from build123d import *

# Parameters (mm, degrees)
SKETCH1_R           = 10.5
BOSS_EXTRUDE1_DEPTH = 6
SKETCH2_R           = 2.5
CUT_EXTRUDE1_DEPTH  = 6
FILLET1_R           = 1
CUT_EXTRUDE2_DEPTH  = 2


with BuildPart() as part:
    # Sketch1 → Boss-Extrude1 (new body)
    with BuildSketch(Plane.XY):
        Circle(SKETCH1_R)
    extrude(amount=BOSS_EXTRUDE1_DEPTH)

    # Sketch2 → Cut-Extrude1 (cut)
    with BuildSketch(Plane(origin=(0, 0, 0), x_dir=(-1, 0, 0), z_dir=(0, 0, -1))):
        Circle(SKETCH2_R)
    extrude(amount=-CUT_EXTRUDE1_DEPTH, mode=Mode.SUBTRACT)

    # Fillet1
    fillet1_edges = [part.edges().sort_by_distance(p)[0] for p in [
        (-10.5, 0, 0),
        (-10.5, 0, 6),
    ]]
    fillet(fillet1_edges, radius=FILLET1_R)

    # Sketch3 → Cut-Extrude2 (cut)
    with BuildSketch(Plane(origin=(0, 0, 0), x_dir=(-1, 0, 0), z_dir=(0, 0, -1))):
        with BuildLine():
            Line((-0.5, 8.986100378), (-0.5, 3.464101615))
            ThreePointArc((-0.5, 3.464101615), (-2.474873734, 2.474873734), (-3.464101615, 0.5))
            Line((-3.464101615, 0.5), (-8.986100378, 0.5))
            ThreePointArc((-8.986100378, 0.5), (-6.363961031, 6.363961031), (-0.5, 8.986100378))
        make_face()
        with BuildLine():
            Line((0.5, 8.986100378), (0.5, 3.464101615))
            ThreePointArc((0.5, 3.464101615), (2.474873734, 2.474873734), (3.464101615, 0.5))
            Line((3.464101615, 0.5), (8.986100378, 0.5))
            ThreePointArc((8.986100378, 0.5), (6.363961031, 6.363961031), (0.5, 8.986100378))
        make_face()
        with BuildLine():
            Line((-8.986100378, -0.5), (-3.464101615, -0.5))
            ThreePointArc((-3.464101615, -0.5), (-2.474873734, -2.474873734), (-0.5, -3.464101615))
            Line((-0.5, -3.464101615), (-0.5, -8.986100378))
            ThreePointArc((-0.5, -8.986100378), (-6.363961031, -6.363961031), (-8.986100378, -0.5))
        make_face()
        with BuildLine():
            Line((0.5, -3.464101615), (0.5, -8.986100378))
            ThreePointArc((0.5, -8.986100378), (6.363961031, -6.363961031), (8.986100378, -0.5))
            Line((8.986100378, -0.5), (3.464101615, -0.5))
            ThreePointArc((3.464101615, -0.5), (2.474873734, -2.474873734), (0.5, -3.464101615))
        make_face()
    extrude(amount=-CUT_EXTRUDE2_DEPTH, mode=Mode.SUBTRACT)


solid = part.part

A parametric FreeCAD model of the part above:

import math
import FreeCAD as App
import Part
import Sketcher
from FreeCAD import Vector
Q = App.Units.Quantity


def edges_at(feature, points):
    """Names of the edges that pass closest to the given points."""
    edges = feature.Shape.Edges
    near = lambda p: min(range(len(edges)), key=lambda i: edges[i].distToShape(Part.Vertex(*p))[0])
    return sorted({f"Edge{near(p) + 1}" for p in points})

doc = App.newDocument("Part")
body = doc.addObject("PartDesign::Body", "Body")

# Sketch on XY plane
sketch1 = doc.addObject("Sketcher::SketchObject", "Sketch")
body.addObject(sketch1)
sketch1.AttachmentSupport = (doc.XY_Plane, [""])
sketch1.MapMode = "FlatFace"
sketch1.addGeometry(Part.Circle(Vector(0, 0, 0), Vector(0, 0, 1), 10), False)
sketch1.addConstraint([
    Sketcher.Constraint("Coincident", 0, 3, -1, 1),
    Sketcher.Constraint("Diameter", 0, Q("21 mm")),
])
pad1 = doc.addObject("PartDesign::Pad", "Pad")
body.addObject(pad1)
pad1.Profile = sketch1
pad1.Length = 6

# Sketch on XY plane
sketch2 = doc.addObject("Sketcher::SketchObject", "Sketch001")
body.addObject(sketch2)
sketch2.AttachmentSupport = (doc.XY_Plane, [""])
sketch2.MapMode = "FlatFace"
sketch2.addGeometry(Part.Circle(Vector(0, 0, 0), Vector(0, 0, 1), 2.5), False)
sketch2.addConstraint([
    Sketcher.Constraint("Coincident", 0, 3, -1, 1),
    Sketcher.Constraint("Diameter", 0, Q("5 mm")),
])
pocket1 = doc.addObject("PartDesign::Pocket", "Pocket")
body.addObject(pocket1)
pocket1.Profile = sketch2
pocket1.Length = 6
pocket1.Reversed = True
doc.recompute()

fillet = doc.addObject("PartDesign::Fillet", "Fillet")
body.addObject(fillet)
fillet.Base = (pocket1, edges_at(pocket1, [(-10.5, 0, 0), (-10.5, 0, 6)]))
fillet.Radius = 1

# Sketch on XY plane
sketch3 = doc.addObject("Sketcher::SketchObject", "Sketch002")
body.addObject(sketch3)
sketch3.AttachmentSupport = (doc.XY_Plane, [""])
sketch3.MapMode = "FlatFace"
sketch3.addGeometry([
    Part.LineSegment(Vector(0.5, 3.5, 0), Vector(0.5, 9, 0)),  # 0
    Part.ArcOfCircle(Part.Circle(Vector(0, 0, 0), Vector(0, 0, 1), 9), math.radians(3), math.radians(87)),  # 1
    Part.LineSegment(Vector(9, 0.5, 0), Vector(3.5, 0.5, 0)),  # 2
    Part.ArcOfCircle(Part.Circle(Vector(0, 0, 0), Vector(0, 0, 1), 3.5), math.radians(8), math.radians(82)),  # 3
    Part.LineSegment(Vector(-0.5, 9, 0), Vector(-0.5, 3.5, 0)),  # 4
    Part.ArcOfCircle(Part.Circle(Vector(0, 0, 0), Vector(0, 0, 1), 3.5), math.radians(98), math.radians(172)),  # 5
    Part.LineSegment(Vector(-3.5, 0.5, 0), Vector(-9, 0.5, 0)),  # 6
    Part.ArcOfCircle(Part.Circle(Vector(0, 0, 0), Vector(0, 0, 1), 9), math.radians(93), math.radians(177)),  # 7
    Part.LineSegment(Vector(3.5, -0.5, 0), Vector(9, -0.5, 0)),  # 8
    Part.ArcOfCircle(Part.Circle(Vector(0, 0, 0), Vector(0, 0, 1), 9), math.radians(-87), math.radians(-3)),  # 9
    Part.LineSegment(Vector(0.5, -9, 0), Vector(0.5, -3.5, 0)),  # 10
    Part.ArcOfCircle(Part.Circle(Vector(0, 0, 0), Vector(0, 0, 1), 3.5), math.radians(-82), math.radians(-8)),  # 11
    Part.LineSegment(Vector(-0.5, -3.5, 0), Vector(-0.5, -9, 0)),  # 12
    Part.ArcOfCircle(Part.Circle(Vector(0, 0, 0), Vector(0, 0, 1), 9), math.radians(-177), math.radians(-93)),  # 13
    Part.LineSegment(Vector(-9, -0.5, 0), Vector(-3.5, -0.5, 0)),  # 14
    Part.ArcOfCircle(Part.Circle(Vector(0, 0, 0), Vector(0, 0, 1), 3.5), math.radians(-172), math.radians(-98)),  # 15
], False)
sketch3.addConstraint([
    Sketcher.Constraint("Coincident", 0, 2, 1, 2),
    Sketcher.Constraint("Coincident", 1, 1, 2, 1),
    Sketcher.Constraint("Coincident", 2, 2, 3, 1),
    Sketcher.Constraint("Coincident", 3, 2, 0, 1),
    Sketcher.Constraint("Coincident", 4, 2, 5, 1),
    Sketcher.Constraint("Coincident", 5, 2, 6, 1),
    Sketcher.Constraint("Coincident", 6, 2, 7, 2),
    Sketcher.Constraint("Coincident", 7, 1, 4, 1),
    Sketcher.Constraint("Coincident", 8, 2, 9, 2),
    Sketcher.Constraint("Coincident", 9, 1, 10, 1),
    Sketcher.Constraint("Coincident", 10, 2, 11, 1),
    Sketcher.Constraint("Coincident", 11, 2, 8, 1),
    Sketcher.Constraint("Coincident", 12, 2, 13, 2),
    Sketcher.Constraint("Coincident", 13, 1, 14, 1),
    Sketcher.Constraint("Coincident", 14, 2, 15, 1),
    Sketcher.Constraint("Coincident", 15, 2, 12, 1),
    Sketcher.Constraint("Vertical", 0),
    Sketcher.Constraint("Horizontal", 2),
    Sketcher.Constraint("Vertical", 4),
    Sketcher.Constraint("Horizontal", 6),
    Sketcher.Constraint("Horizontal", 8),
    Sketcher.Constraint("Vertical", 10),
    Sketcher.Constraint("Vertical", 12),
    Sketcher.Constraint("Horizontal", 14),
    Sketcher.Constraint("Coincident", 1, 3, -1, 1),
    Sketcher.Constraint("Coincident", 3, 3, -1, 1),
    Sketcher.Constraint("Coincident", 5, 3, -1, 1),
    Sketcher.Constraint("Coincident", 7, 3, -1, 1),
    Sketcher.Constraint("Coincident", 9, 3, -1, 1),
    Sketcher.Constraint("Coincident", 11, 3, -1, 1),
    Sketcher.Constraint("Coincident", 13, 3, -1, 1),
    Sketcher.Constraint("Coincident", 15, 3, -1, 1),
    Sketcher.Constraint("Equal", 3, 5),
    Sketcher.Constraint("Equal", 1, 7),
    Sketcher.Constraint("Equal", 7, 9),
    Sketcher.Constraint("Equal", 5, 11),
    Sketcher.Constraint("Equal", 9, 13),
    Sketcher.Constraint("Equal", 11, 15),
    Sketcher.Constraint("Horizontal", 3, 2, 4, 2),
    Sketcher.Constraint("Horizontal", 2, 2, 5, 2),
    Sketcher.Constraint("Horizontal", 9, 1, 12, 2),
    Sketcher.Constraint("Horizontal", 11, 2, 13, 1),
    Sketcher.Constraint("Vertical", 1, 1, 8, 2),
    Sketcher.Constraint("Vertical", 3, 2, 9, 1),
    Sketcher.Constraint("Equal", 14, 0),
    Sketcher.Constraint("Radius", 1, Q("9 mm")),
    Sketcher.Constraint("Radius", 3, Q("3.5 mm")),
    Sketcher.Constraint("DistanceX", 4, 2, 3, 2, Q("1 mm")),
])
pocket2 = doc.addObject("PartDesign::Pocket", "Pocket001")
body.addObject(pocket2)
pocket2.Profile = sketch3
pocket2.Length = 2
pocket2.Reversed = True

doc.recompute()
